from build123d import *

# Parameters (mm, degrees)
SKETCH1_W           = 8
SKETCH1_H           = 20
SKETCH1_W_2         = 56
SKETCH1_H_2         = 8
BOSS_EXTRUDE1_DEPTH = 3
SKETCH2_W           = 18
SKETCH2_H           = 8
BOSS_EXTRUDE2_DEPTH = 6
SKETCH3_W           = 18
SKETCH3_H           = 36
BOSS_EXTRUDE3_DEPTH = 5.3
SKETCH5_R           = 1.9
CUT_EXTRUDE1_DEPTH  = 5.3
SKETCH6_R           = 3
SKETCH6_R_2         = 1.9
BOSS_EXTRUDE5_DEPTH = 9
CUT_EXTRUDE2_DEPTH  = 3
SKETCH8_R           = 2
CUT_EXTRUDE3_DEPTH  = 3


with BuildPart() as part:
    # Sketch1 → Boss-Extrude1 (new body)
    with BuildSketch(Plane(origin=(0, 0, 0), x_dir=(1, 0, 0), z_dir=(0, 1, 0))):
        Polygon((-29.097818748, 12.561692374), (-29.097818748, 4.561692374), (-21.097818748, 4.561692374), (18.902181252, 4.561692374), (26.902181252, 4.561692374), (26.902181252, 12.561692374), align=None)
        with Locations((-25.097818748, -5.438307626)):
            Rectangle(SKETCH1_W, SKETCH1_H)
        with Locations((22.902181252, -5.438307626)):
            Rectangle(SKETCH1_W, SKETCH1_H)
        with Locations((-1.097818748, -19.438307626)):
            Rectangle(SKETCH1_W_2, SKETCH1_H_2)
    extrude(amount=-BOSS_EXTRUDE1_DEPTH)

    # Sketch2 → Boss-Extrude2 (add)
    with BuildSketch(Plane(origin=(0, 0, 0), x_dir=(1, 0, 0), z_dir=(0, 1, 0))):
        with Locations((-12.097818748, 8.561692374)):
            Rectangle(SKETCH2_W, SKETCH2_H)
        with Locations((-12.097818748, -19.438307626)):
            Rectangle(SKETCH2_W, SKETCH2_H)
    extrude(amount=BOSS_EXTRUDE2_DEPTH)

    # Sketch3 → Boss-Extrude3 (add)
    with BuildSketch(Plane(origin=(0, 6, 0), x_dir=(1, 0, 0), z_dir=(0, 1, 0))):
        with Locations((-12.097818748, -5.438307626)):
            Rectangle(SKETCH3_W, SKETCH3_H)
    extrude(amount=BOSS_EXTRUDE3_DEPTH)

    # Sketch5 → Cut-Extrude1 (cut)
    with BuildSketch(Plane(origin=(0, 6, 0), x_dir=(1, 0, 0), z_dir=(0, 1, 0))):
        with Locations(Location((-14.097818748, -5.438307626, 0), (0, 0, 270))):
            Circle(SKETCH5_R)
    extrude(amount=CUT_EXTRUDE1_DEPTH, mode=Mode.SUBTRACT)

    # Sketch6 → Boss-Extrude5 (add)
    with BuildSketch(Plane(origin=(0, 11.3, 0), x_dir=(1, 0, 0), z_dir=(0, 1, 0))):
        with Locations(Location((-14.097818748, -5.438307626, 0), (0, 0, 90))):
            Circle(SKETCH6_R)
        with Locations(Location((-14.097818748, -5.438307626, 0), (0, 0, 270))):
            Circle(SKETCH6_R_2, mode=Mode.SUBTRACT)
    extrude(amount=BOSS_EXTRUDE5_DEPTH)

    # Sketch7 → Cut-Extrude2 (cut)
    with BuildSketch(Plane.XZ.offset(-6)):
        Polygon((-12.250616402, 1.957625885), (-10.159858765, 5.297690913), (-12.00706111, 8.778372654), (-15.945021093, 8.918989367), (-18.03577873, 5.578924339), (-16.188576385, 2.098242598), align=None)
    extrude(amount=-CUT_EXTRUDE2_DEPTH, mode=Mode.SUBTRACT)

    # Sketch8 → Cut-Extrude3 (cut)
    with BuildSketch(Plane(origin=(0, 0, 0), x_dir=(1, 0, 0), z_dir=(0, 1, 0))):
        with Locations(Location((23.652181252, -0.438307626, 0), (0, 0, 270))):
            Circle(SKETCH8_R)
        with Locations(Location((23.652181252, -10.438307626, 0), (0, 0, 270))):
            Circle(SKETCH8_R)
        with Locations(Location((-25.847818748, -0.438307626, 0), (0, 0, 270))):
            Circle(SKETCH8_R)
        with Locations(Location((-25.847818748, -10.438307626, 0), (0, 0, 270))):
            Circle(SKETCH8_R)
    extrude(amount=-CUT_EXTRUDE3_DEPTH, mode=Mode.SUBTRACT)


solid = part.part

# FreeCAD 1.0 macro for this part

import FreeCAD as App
import Part
import Sketcher

doc = App.newDocument("Part")
body = doc.addObject("PartDesign::Body", "Body")

# Sketch on XZ plane
sketch1 = body.newObject("Sketcher::SketchObject", "Sketch")
sketch1.AttachmentSupport = (doc.getObject("XZ_Plane"), [""])
sketch1.MapMode = "FlatFace"
sketch1.addGeometry(Part.LineSegment(App.Vector(-29, -13, 0), App.Vector(-29, 23, 0)), False)
sketch1.addGeometry(Part.LineSegment(App.Vector(-29, 23, 0), App.Vector(27, 23, 0)), False)
sketch1.addGeometry(Part.LineSegment(App.Vector(27, 23, 0), App.Vector(27, -13, 0)), False)
sketch1.addGeometry(Part.LineSegment(App.Vector(27, -13, 0), App.Vector(-29, -13, 0)), False)
sketch1.addGeometry(Part.LineSegment(App.Vector(-21, 15, 0), App.Vector(-21, -5, 0)), False)
sketch1.addGeometry(Part.LineSegment(App.Vector(-21, -5, 0), App.Vector(19, -5, 0)), False)
sketch1.addGeometry(Part.LineSegment(App.Vector(19, -5, 0), App.Vector(19, 15, 0)), False)
sketch1.addGeometry(Part.LineSegment(App.Vector(19, 15, 0), App.Vector(-21, 15, 0)), False)
sketch1.addConstraint(Sketcher.Constraint("Coincident", 0, 2, 1, 1))
sketch1.addConstraint(Sketcher.Constraint("Coincident", 1, 2, 2, 1))
sketch1.addConstraint(Sketcher.Constraint("Coincident", 2, 2, 3, 1))
sketch1.addConstraint(Sketcher.Constraint("Coincident", 3, 2, 0, 1))
sketch1.addConstraint(Sketcher.Constraint("Coincident", 4, 2, 5, 1))
sketch1.addConstraint(Sketcher.Constraint("Coincident", 5, 2, 6, 1))
sketch1.addConstraint(Sketcher.Constraint("Coincident", 6, 2, 7, 1))
sketch1.addConstraint(Sketcher.Constraint("Coincident", 7, 2, 4, 1))
sketch1.addConstraint(Sketcher.Constraint("Vertical", 0))
sketch1.addConstraint(Sketcher.Constraint("Horizontal", 1))
sketch1.addConstraint(Sketcher.Constraint("Vertical", 2))
sketch1.addConstraint(Sketcher.Constraint("Horizontal", 3))
sketch1.addConstraint(Sketcher.Constraint("Vertical", 4))
sketch1.addConstraint(Sketcher.Constraint("Horizontal", 5))
sketch1.addConstraint(Sketcher.Constraint("Vertical", 6))
sketch1.addConstraint(Sketcher.Constraint("Horizontal", 7))
sketch1.addConstraint(Sketcher.Constraint("DistanceX", 1, 1, 1, 2, 56.0))
sketch1.addConstraint(Sketcher.Constraint("DistanceX", 5, 1, 5, 2, 40.0))
sketch1.addConstraint(Sketcher.Constraint("DistanceY", 0, 1, 0, 2, 36.0))
sketch1.addConstraint(Sketcher.Constraint("DistanceY", 4, 2, 4, 1, 20.0))
sketch1.addConstraint(Sketcher.Constraint("DistanceX", 3, 2, 4, 2, 8.0))
sketch1.addConstraint(Sketcher.Constraint("DistanceY", 3, 2, 4, 2, 8.0))
sketch1.addConstraint(Sketcher.Constraint("DistanceX", 0, 2, -1, 1, 29.097819))
sketch1.addConstraint(Sketcher.Constraint("DistanceY", -1, 1, 0, 2, 23.438308))
pad1 = body.newObject("PartDesign::Pad", "Pad")
pad1.Profile = sketch1
pad1.Length = 3

# Sketch on XZ plane
sketch2 = body.newObject("Sketcher::SketchObject", "Sketch001")
sketch2.AttachmentSupport = (doc.getObject("XZ_Plane"), [""])
sketch2.MapMode = "FlatFace"
sketch2.addGeometry(Part.LineSegment(App.Vector(-21, -13, 0), App.Vector(-21, -5, 0)), False)
sketch2.addGeometry(Part.LineSegment(App.Vector(-21, -5, 0), App.Vector(-3, -5, 0)), False)
sketch2.addGeometry(Part.LineSegment(App.Vector(-3, -5, 0), App.Vector(-3, -13, 0)), False)
sketch2.addGeometry(Part.LineSegment(App.Vector(-3, -13, 0), App.Vector(-21, -13, 0)), False)
sketch2.addGeometry(Part.LineSegment(App.Vector(-21, 15, 0), App.Vector(-21, 23, 0)), False)
sketch2.addGeometry(Part.LineSegment(App.Vector(-21, 23, 0), App.Vector(-3, 23, 0)), False)
sketch2.addGeometry(Part.LineSegment(App.Vector(-3, 23, 0), App.Vector(-3, 15, 0)), False)
sketch2.addGeometry(Part.LineSegment(App.Vector(-3, 15, 0), App.Vector(-21, 15, 0)), False)
sketch2.addConstraint(Sketcher.Constraint("Coincident", 0, 2, 1, 1))
sketch2.addConstraint(Sketcher.Constraint("Coincident", 1, 2, 2, 1))
sketch2.addConstraint(Sketcher.Constraint("Coincident", 2, 2, 3, 1))
sketch2.addConstraint(Sketcher.Constraint("Coincident", 3, 2, 0, 1))
sketch2.addConstraint(Sketcher.Constraint("Coincident", 4, 2, 5, 1))
sketch2.addConstraint(Sketcher.Constraint("Coincident", 5, 2, 6, 1))
sketch2.addConstraint(Sketcher.Constraint("Coincident", 6, 2, 7, 1))
sketch2.addConstraint(Sketcher.Constraint("Coincident", 7, 2, 4, 1))
sketch2.addConstraint(Sketcher.Constraint("Vertical", 0))
sketch2.addConstraint(Sketcher.Constraint("Horizontal", 1))
sketch2.addConstraint(Sketcher.Constraint("Vertical", 2))
sketch2.addConstraint(Sketcher.Constraint("Horizontal", 3))
sketch2.addConstraint(Sketcher.Constraint("Vertical", 4))
sketch2.addConstraint(Sketcher.Constraint("Horizontal", 5))
sketch2.addConstraint(Sketcher.Constraint("Vertical", 6))
sketch2.addConstraint(Sketcher.Constraint("Horizontal", 7))
sketch2.addConstraint(Sketcher.Constraint("Vertical", 3, 2, 4, 2))
sketch2.addConstraint(Sketcher.Constraint("Vertical", 2, 2, 5, 2))
sketch2.addConstraint(Sketcher.Constraint("Equal", 2, 4))
sketch2.addConstraint(Sketcher.Constraint("DistanceX", 1, 1, 1, 2, 18.0))
sketch2.addConstraint(Sketcher.Constraint("DistanceY", 0, 1, 0, 2, 8.0))
sketch2.addConstraint(Sketcher.Constraint("DistanceY", 0, 2, 4, 2, 28.0))
sketch2.addConstraint(Sketcher.Constraint("DistanceX", 0, 2, -1, 1, 21.097819))
sketch2.addConstraint(Sketcher.Constraint("DistanceY", 0, 2, -1, 1, 4.561692))
pad2 = body.newObject("PartDesign::Pad", "Pad001")
pad2.Profile = sketch2
pad2.Length = 6
pad2.Reversed = True

# Sketch on XZ plane
sketch3 = body.newObject("Sketcher::SketchObject", "Sketch002")
sketch3.AttachmentSupport = (doc.getObject("XZ_Plane"), [""])
sketch3.MapMode = "FlatFace"
sketch3.AttachmentOffset = App.Placement(App.Vector(0, 0, -6), App.Rotation())
sketch3.addGeometry(Part.LineSegment(App.Vector(-21, -13, 0), App.Vector(-21, 23, 0)), False)
sketch3.addGeometry(Part.LineSegment(App.Vector(-21, 23, 0), App.Vector(-3, 23, 0)), False)
sketch3.addGeometry(Part.LineSegment(App.Vector(-3, 23, 0), App.Vector(-3, -13, 0)), False)
sketch3.addGeometry(Part.LineSegment(App.Vector(-3, -13, 0), App.Vector(-21, -13, 0)), False)
sketch3.addConstraint(Sketcher.Constraint("Coincident", 0, 2, 1, 1))
sketch3.addConstraint(Sketcher.Constraint("Coincident", 1, 2, 2, 1))
sketch3.addConstraint(Sketcher.Constraint("Coincident", 2, 2, 3, 1))
sketch3.addConstraint(Sketcher.Constraint("Coincident", 3, 2, 0, 1))
sketch3.addConstraint(Sketcher.Constraint("Vertical", 0))
sketch3.addConstraint(Sketcher.Constraint("Horizontal", 1))
sketch3.addConstraint(Sketcher.Constraint("Vertical", 2))
sketch3.addConstraint(Sketcher.Constraint("Horizontal", 3))
sketch3.addConstraint(Sketcher.Constraint("DistanceX", 1, 1, 1, 2, 18.0))
sketch3.addConstraint(Sketcher.Constraint("DistanceY", 0, 1, 0, 2, 36.0))
sketch3.addConstraint(Sketcher.Constraint("DistanceX", 0, 2, -1, 1, 21.097819))
sketch3.addConstraint(Sketcher.Constraint("DistanceY", -1, 1, 0, 2, 23.438308))
pad3 = body.newObject("PartDesign::Pad", "Pad002")
pad3.Profile = sketch3
pad3.Length = 5.3
pad3.Reversed = True

# Sketch on XZ plane
sketch4 = body.newObject("Sketcher::SketchObject", "Sketch003")
sketch4.AttachmentSupport = (doc.getObject("XZ_Plane"), [""])
sketch4.MapMode = "FlatFace"
sketch4.AttachmentOffset = App.Placement(App.Vector(0, 0, -6), App.Rotation())
sketch4.addGeometry(Part.Circle(App.Vector(-14.1, 5.4, 0), App.Vector(0, 0, 1), 1.9), False)
sketch4.addConstraint(Sketcher.Constraint("Diameter", 0, 3.8))
sketch4.addConstraint(Sketcher.Constraint("DistanceX", 0, 3, -1, 1, 14.097819))
sketch4.addConstraint(Sketcher.Constraint("DistanceY", -1, 1, 0, 3, 5.438308))
pocket1 = body.newObject("PartDesign::Pocket", "Pocket")
pocket1.Profile = sketch4
pocket1.Length = 5.3

# Sketch on XZ plane
sketch5 = body.newObject("Sketcher::SketchObject", "Sketch004")
sketch5.AttachmentSupport = (doc.getObject("XZ_Plane"), [""])
sketch5.MapMode = "FlatFace"
sketch5.AttachmentOffset = App.Placement(App.Vector(0, 0, -11.3), App.Rotation())
sketch5.addGeometry(Part.Circle(App.Vector(-14.1, 5.4, 0), App.Vector(0, 0, 1), 3), False)
sketch5.addGeometry(Part.Circle(App.Vector(-14.1, 5.4, 0), App.Vector(0, 0, 1), 1.9), False)
sketch5.addConstraint(Sketcher.Constraint("Coincident", 1, 3, 0, 3))
sketch5.addConstraint(Sketcher.Constraint("Diameter", 0, 6.0))
sketch5.addConstraint(Sketcher.Constraint("Diameter", 1, 3.8))
sketch5.addConstraint(Sketcher.Constraint("DistanceX", 0, 3, -1, 1, 14.097819))
sketch5.addConstraint(Sketcher.Constraint("DistanceY", -1, 1, 0, 3, 5.438308))
pad4 = body.newObject("PartDesign::Pad", "Pad003")
pad4.Profile = sketch5
pad4.Length = 9
pad4.Reversed = True

# Sketch on XZ plane
sketch6 = body.newObject("Sketcher::SketchObject", "Sketch005")
sketch6.AttachmentSupport = (doc.getObject("XZ_Plane"), [""])
sketch6.MapMode = "FlatFace"
sketch6.AttachmentOffset = App.Placement(App.Vector(0, 0, -6), App.Rotation())
sketch6.addGeometry(Part.LineSegment(App.Vector(-12.3, 2, 0), App.Vector(-10.2, 5.3, 0)), False)
sketch6.addGeometry(Part.LineSegment(App.Vector(-10.2, 5.3, 0), App.Vector(-12, 8.8, 0)), False)
sketch6.addGeometry(Part.LineSegment(App.Vector(-12, 8.8, 0), App.Vector(-15.9, 8.9, 0)), False)
sketch6.addGeometry(Part.LineSegment(App.Vector(-15.9, 8.9, 0), App.Vector(-18, 5.6, 0)), False)
sketch6.addGeometry(Part.LineSegment(App.Vector(-18, 5.6, 0), App.Vector(-16.2, 2.1, 0)), False)
sketch6.addGeometry(Part.LineSegment(App.Vector(-16.2, 2.1, 0), App.Vector(-12.3, 2, 0)), False)
sketch6.addConstraint(Sketcher.Constraint("Coincident", 0, 2, 1, 1))
sketch6.addConstraint(Sketcher.Constraint("Coincident", 1, 2, 2, 1))
sketch6.addConstraint(Sketcher.Constraint("Coincident", 2, 2, 3, 1))
sketch6.addConstraint(Sketcher.Constraint("Coincident", 3, 2, 4, 1))
sketch6.addConstraint(Sketcher.Constraint("Coincident", 4, 2, 5, 1))
sketch6.addConstraint(Sketcher.Constraint("Coincident", 5, 2, 0, 1))
sketch6.addConstraint(Sketcher.Constraint("Parallel", 0, 3))
sketch6.addConstraint(Sketcher.Constraint("Parallel", 1, 4))
sketch6.addConstraint(Sketcher.Constraint("Parallel", 2, 5))
sketch6.addConstraint(Sketcher.Constraint("Equal", 0, 1))
sketch6.addConstraint(Sketcher.Constraint("Equal", 1, 2))
sketch6.addConstraint(Sketcher.Constraint("Equal", 2, 3))
sketch6.addConstraint(Sketcher.Constraint("DistanceY", 0, 2, 2, 2, 3.621298))
sketch6.addConstraint(Sketcher.Constraint("Distance", 0, 3.94047))
sketch6.addConstraint(Sketcher.Constraint("DistanceX", 0, 2, -1, 1, 10.159859))
sketch6.addConstraint(Sketcher.Constraint("DistanceY", -1, 1, 0, 2, 5.297691))
sketch6.addConstraint(Sketcher.Constraint("DistanceX", 1, 2, -1, 1, 12.007061))
sketch6.addConstraint(Sketcher.Constraint("DistanceX", 3, 2, -1, 1, 18.035779))
pocket2 = body.newObject("PartDesign::Pocket", "Pocket001")
pocket2.Profile = sketch6
pocket2.Length = 3

# Sketch on XZ plane
sketch7 = body.newObject("Sketcher::SketchObject", "Sketch006")
sketch7.AttachmentSupport = (doc.getObject("XZ_Plane"), [""])
sketch7.MapMode = "FlatFace"
sketch7.addGeometry(Part.Circle(App.Vector(23.7, 0.4, 0), App.Vector(0, 0, 1), 2), False)
sketch7.addGeometry(Part.Circle(App.Vector(23.7, 10.4, 0), App.Vector(0, 0, 1), 2), False)
sketch7.addGeometry(Part.Circle(App.Vector(-25.8, 0.4, 0), App.Vector(0, 0, 1), 2), False)
sketch7.addGeometry(Part.Circle(App.Vector(-25.8, 10.4, 0), App.Vector(0, 0, 1), 2), False)
sketch7.addConstraint(Sketcher.Constraint("Equal", 0, 1))
sketch7.addConstraint(Sketcher.Constraint("Equal", 1, 2))
sketch7.addConstraint(Sketcher.Constraint("Equal", 2, 3))
sketch7.addConstraint(Sketcher.Constraint("Horizontal", 0, 3, 2, 3))
sketch7.addConstraint(Sketcher.Constraint("Horizontal", 1, 3, 3, 3))
sketch7.addConstraint(Sketcher.Constraint("Vertical", 0, 3, 1, 3))
sketch7.addConstraint(Sketcher.Constraint("Vertical", 2, 3, 3, 3))
sketch7.addConstraint(Sketcher.Constraint("Diameter", 0, 4.0))
sketch7.addConstraint(Sketcher.Constraint("DistanceY", 0, 3, 1, 3, 10.0))
sketch7.addConstraint(Sketcher.Constraint("DistanceX", 2, 3, 0, 3, 49.5))
sketch7.addConstraint(Sketcher.Constraint("DistanceX", -1, 1, 0, 3, 23.652181))
sketch7.addConstraint(Sketcher.Constraint("DistanceY", -1, 1, 0, 3, 0.438308))
pocket3 = body.newObject("PartDesign::Pocket", "Pocket002")
pocket3.Profile = sketch7
pocket3.Length = 3
pocket3.Reversed = True

doc.recompute()
